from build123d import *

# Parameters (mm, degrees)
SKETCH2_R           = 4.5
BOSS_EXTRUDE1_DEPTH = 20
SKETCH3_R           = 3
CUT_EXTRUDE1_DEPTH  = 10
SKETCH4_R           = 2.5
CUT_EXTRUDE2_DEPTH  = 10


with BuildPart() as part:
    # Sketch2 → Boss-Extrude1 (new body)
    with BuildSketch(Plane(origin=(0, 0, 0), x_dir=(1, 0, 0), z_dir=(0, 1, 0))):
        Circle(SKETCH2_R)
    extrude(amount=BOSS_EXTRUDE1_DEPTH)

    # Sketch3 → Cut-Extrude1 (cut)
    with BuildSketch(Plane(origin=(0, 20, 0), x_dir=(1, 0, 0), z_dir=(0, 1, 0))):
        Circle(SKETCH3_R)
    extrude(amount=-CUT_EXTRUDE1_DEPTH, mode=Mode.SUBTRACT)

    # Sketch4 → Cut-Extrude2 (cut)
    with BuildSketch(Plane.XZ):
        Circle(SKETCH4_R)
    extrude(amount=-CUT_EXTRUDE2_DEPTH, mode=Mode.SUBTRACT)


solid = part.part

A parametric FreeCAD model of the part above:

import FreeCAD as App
import Part
import Sketcher

V = App.Vector
Q = App.Units.Quantity

doc = App.newDocument("Part")
body = doc.addObject("PartDesign::Body", "Body")

# Sketch on XZ plane
sketch1 = body.newObject("Sketcher::SketchObject", "Sketch")
sketch1.AttachmentSupport = (doc.getObject("XZ_Plane"), [""])
sketch1.MapMode = "FlatFace"
sketch1.addGeometry(Part.Circle(V(0, 0, 0), V(0, 0, 1), 4.5), False)
sketch1.addConstraint([
    Sketcher.Constraint("Coincident", 0, 3, -1, 1),
    Sketcher.Constraint("Diameter", 0, Q("9 mm")),
])
pad1 = body.newObject("PartDesign::Pad", "Pad")
pad1.Profile = sketch1
pad1.Length = 20
pad1.Reversed = True

# Sketch on XZ plane
sketch2 = body.newObject("Sketcher::SketchObject", "Sketch001")
sketch2.AttachmentSupport = (doc.getObject("XZ_Plane"), [""])
sketch2.MapMode = "FlatFace"
sketch2.AttachmentOffset = App.Placement(V(0, 0, -20), App.Rotation())
sketch2.addGeometry(Part.Circle(V(0, 0, 0), V(0, 0, 1), 3), False)
sketch2.addConstraint([
    Sketcher.Constraint("Coincident", 0, 3, -1, 1),
    Sketcher.Constraint("Diameter", 0, Q("6 mm")),
])
pocket1 = body.newObject("PartDesign::Pocket", "Pocket")
pocket1.Profile = sketch2
pocket1.Length = 10
pocket1.Reversed = True

# Sketch on XZ plane
sketch3 = body.newObject("Sketcher::SketchObject", "Sketch002")
sketch3.AttachmentSupport = (doc.getObject("XZ_Plane"), [""])
sketch3.MapMode = "FlatFace"
sketch3.addGeometry(Part.Circle(V(0, 0, 0), V(0, 0, 1), 2.5), False)
sketch3.addConstraint([
    Sketcher.Constraint("Coincident", 0, 3, -1, 1),
    Sketcher.Constraint("Diameter", 0, Q("5 mm")),
])
pocket2 = body.newObject("PartDesign::Pocket", "Pocket001")
pocket2.Profile = sketch3
pocket2.Length = 10

doc.recompute()
